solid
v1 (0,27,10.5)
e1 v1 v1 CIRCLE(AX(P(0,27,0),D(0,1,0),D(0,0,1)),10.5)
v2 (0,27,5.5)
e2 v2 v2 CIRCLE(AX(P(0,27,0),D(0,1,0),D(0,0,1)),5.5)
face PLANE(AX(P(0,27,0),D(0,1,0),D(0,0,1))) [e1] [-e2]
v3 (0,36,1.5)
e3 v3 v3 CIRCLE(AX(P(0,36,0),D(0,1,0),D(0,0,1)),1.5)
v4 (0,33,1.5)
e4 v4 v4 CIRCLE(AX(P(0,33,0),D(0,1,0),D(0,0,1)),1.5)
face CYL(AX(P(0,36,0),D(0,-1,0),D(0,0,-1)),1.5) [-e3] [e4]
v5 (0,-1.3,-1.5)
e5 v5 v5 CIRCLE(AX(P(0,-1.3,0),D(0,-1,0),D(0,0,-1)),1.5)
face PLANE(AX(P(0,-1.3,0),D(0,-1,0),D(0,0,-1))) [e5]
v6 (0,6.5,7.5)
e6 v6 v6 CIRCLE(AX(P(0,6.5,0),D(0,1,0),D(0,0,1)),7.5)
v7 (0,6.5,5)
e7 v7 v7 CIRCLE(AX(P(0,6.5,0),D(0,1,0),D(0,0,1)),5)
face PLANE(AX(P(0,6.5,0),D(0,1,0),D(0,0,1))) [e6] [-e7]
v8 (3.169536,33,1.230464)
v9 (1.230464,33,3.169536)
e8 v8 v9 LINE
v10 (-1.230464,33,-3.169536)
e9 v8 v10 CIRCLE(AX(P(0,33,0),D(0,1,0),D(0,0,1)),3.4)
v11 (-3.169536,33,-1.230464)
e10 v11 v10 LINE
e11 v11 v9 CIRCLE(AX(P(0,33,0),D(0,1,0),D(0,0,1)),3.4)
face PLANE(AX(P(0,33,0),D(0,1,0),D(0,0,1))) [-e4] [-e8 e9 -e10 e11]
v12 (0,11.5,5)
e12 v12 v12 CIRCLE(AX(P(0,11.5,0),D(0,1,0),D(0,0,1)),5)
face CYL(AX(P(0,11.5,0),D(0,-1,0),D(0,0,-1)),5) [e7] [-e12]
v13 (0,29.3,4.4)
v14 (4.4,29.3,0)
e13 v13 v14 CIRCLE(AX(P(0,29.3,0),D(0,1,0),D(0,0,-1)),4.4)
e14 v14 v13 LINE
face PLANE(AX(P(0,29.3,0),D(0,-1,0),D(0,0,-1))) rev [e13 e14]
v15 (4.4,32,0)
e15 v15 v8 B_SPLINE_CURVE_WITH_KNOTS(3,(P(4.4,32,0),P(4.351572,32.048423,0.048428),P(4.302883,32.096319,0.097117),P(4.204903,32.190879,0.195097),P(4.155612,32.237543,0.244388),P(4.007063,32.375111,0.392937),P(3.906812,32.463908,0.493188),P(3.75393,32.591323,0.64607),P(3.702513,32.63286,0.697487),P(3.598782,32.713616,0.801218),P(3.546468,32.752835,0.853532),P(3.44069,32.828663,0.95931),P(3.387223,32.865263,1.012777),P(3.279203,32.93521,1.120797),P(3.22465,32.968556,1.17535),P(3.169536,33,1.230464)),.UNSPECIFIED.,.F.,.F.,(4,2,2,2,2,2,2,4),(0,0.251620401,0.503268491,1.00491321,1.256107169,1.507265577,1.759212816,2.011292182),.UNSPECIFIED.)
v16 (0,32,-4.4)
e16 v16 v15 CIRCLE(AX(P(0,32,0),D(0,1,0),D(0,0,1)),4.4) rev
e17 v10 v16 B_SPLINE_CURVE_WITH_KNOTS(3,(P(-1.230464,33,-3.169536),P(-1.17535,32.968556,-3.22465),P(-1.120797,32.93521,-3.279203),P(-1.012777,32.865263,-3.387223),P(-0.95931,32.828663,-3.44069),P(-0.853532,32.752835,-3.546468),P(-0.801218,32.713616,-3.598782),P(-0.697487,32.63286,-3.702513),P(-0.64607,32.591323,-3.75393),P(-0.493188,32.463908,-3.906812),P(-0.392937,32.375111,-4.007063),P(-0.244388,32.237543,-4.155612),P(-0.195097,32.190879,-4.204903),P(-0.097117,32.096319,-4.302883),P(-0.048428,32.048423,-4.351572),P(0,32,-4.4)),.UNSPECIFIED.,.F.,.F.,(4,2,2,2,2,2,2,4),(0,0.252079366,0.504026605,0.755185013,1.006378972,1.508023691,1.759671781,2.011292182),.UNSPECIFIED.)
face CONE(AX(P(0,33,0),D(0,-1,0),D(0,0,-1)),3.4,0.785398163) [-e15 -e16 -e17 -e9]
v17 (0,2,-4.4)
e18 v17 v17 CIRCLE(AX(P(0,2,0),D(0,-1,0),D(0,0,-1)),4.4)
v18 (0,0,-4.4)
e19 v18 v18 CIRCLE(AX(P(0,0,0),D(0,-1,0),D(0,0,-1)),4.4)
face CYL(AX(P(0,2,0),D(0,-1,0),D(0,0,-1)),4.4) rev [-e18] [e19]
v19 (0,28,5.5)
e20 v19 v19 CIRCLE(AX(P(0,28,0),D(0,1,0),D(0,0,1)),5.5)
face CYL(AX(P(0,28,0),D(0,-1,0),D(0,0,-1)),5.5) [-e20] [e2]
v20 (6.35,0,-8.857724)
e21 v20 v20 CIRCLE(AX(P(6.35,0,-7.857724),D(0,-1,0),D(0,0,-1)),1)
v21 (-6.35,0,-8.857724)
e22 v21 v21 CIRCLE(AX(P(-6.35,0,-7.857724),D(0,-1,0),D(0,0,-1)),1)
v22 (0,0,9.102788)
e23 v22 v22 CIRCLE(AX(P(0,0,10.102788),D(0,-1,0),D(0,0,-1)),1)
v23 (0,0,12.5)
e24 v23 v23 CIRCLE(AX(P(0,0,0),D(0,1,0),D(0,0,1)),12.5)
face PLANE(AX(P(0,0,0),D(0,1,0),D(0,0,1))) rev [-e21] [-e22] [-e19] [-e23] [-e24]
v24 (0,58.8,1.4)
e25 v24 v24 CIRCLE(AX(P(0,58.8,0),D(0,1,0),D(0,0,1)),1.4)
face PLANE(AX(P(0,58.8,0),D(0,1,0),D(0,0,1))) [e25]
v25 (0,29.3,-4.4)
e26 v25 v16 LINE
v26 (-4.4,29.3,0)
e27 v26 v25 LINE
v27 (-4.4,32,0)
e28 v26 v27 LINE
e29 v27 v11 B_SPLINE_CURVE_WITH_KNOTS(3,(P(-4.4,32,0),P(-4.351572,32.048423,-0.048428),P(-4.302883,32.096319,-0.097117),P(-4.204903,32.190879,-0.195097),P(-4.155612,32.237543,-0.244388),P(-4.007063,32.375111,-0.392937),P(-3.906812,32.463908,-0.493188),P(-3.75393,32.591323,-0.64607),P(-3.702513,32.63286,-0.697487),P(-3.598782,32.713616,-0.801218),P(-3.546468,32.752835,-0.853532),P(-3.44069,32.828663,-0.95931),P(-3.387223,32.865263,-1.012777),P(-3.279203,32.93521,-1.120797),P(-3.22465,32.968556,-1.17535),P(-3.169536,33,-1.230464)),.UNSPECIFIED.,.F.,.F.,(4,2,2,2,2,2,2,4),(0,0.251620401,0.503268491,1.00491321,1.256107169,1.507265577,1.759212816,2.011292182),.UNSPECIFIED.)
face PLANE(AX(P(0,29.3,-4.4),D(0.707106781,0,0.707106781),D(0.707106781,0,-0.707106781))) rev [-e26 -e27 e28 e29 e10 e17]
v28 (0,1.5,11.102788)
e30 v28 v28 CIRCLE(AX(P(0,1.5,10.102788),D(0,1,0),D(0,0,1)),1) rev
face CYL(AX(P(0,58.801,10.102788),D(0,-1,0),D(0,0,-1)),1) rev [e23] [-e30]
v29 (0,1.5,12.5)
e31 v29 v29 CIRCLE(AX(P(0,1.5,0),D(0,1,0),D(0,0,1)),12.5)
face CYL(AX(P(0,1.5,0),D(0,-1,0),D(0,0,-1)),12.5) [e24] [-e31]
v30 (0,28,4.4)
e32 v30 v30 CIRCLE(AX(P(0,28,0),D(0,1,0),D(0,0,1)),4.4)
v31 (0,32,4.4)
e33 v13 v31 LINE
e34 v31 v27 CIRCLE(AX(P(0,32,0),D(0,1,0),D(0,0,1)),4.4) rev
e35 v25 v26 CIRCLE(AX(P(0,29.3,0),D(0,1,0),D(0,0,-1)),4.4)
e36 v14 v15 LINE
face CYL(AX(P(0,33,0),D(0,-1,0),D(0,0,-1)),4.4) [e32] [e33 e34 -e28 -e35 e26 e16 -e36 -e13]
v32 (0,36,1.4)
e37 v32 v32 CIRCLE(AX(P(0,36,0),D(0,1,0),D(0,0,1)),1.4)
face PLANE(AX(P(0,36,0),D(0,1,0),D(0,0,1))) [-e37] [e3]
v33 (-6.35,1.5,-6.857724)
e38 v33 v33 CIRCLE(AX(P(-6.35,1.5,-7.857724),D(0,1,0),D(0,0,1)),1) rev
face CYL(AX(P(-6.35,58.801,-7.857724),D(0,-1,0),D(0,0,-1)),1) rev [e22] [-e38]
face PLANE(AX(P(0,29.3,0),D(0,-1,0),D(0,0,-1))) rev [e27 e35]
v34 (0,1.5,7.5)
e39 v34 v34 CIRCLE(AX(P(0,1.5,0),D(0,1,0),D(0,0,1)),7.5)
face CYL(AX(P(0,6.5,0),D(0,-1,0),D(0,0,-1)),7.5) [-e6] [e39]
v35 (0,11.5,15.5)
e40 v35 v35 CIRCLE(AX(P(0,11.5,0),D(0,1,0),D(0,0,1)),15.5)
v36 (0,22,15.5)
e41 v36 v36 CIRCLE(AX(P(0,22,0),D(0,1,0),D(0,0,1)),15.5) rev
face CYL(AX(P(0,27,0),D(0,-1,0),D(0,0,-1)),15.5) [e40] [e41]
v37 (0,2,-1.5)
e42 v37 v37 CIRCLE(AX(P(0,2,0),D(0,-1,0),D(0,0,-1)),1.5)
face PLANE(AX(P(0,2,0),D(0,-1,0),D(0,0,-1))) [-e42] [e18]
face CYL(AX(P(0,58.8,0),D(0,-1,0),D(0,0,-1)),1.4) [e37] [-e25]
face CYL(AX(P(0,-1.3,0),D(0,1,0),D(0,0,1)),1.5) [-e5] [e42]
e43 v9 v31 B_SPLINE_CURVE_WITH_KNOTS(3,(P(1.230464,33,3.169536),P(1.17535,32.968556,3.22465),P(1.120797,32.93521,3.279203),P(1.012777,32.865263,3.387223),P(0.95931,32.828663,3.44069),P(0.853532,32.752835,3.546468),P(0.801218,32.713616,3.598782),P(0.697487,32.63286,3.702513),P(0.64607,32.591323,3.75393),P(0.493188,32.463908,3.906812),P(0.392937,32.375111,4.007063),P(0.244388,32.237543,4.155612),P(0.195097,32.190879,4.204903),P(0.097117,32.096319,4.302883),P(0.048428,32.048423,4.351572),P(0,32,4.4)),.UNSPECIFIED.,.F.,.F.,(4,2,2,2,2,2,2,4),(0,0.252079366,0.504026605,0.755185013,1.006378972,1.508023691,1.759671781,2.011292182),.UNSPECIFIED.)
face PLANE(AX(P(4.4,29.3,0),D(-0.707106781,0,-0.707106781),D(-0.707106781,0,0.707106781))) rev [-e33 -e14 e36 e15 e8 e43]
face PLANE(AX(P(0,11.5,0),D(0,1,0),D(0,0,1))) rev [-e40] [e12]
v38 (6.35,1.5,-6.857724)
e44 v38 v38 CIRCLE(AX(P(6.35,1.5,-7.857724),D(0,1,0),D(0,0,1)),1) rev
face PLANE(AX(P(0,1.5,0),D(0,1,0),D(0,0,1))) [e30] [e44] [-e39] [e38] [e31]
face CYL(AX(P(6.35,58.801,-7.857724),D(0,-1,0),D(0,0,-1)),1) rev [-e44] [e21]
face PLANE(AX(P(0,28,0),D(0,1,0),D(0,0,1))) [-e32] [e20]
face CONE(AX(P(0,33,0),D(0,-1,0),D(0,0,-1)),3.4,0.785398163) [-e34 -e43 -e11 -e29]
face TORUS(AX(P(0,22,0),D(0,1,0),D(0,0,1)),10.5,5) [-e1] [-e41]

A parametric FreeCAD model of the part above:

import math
import FreeCAD as App
import Part
import Sketcher
from FreeCAD import Vector


def edges_at(feature, points):
    """Names of the edges that pass closest to the given points."""
    edges = feature.Shape.Edges
    near = lambda p: min(range(len(edges)), key=lambda i: edges[i].distToShape(Part.Vertex(*p))[0])
    return sorted({f"Edge{near(p) + 1}" for p in points})

doc = App.newDocument("Part")
params = doc.addObject("Spreadsheet::Sheet", "Params")
for row, (alias, value) in enumerate([
    ("sketch1_diameter", "25 mm"),
    ("pad1_length", "1.5 mm"),
    ("sketch2_diameter", "15 mm"),
    ("pad2_length", "5 mm"),
    ("sketch3_diameter", "10 mm"),
    ("pad3_length", "5 mm"),
    ("sketch4_diameter", "31 mm"),
    ("pad4_length", "15.5 mm"),
    ("sketch5_diameter", "11 mm"),
    ("pad5_length", "1 mm"),
    ("sketch6_diameter", "8.8 mm"),
    ("pad6_length", "5 mm"),
    ("sketch7_radius", "4.4 mm"),
    ("pocket1_length", "3.7 mm"),
    ("sketch8_diameter", "3 mm"),
    ("pad7_length", "3 mm"),
    ("sketch9_diameter", "2.8 mm"),
    ("pad8_length", "22.8 mm"),
    ("sketch10_diameter", "8.8 mm"),
    ("pocket2_length", "2 mm"),
    ("sketch11_diameter", "3 mm"),
    ("pad9_length", "3.3 mm"),
    ("sketch12_diameter", "2 mm"),
    ("sketch13_diameter", "2 mm"),
    ("sketch14_diameter", "2 mm"),
    ("fillet_radius", "5 mm"),
    ("chamfer_size", "1 mm"),
], start=1):
    params.set(f"A{row}", alias)
    params.set(f"B{row}", "=" + value)
    params.setAlias(f"B{row}", alias)

body = doc.addObject("PartDesign::Body", "Body")

# Sketch on XZ plane
sketch1 = body.newObject("Sketcher::SketchObject", "Sketch")
sketch1.AttachmentSupport = (doc.getObject("XZ_Plane"), [""])
sketch1.MapMode = "FlatFace"
sketch1.addGeometry(Part.Circle(Vector(0, 0, 0), Vector(0, 0, 1), 12.5), False)
sketch1.addConstraint([
    Sketcher.Constraint("Coincident", 0, 3, -1, 1),
    Sketcher.Constraint("Diameter", 0, 25.0),
])
sketch1.setExpression("Constraints[1]", "Params.sketch1_diameter")
pad1 = body.newObject("PartDesign::Pad", "Pad")
pad1.Profile = sketch1
pad1.setExpression("Length", "Params.pad1_length")
pad1.Reversed = True

# Sketch on XZ plane
sketch2 = body.newObject("Sketcher::SketchObject", "Sketch001")
sketch2.AttachmentSupport = (doc.getObject("XZ_Plane"), [""])
sketch2.MapMode = "FlatFace"
sketch2.AttachmentOffset = App.Placement(Vector(0, 0, -1.5), App.Rotation())
sketch2.addGeometry(Part.Circle(Vector(0, 0, 0), Vector(0, 0, 1), 7.5), False)
sketch2.addConstraint([
    Sketcher.Constraint("Coincident", 0, 3, -1, 1),
    Sketcher.Constraint("Diameter", 0, 15.0),
])
sketch2.setExpression("Constraints[1]", "Params.sketch2_diameter")
pad2 = body.newObject("PartDesign::Pad", "Pad001")
pad2.Profile = sketch2
pad2.setExpression("Length", "Params.pad2_length")
pad2.Reversed = True

# Sketch on XZ plane
sketch3 = body.newObject("Sketcher::SketchObject", "Sketch002")
sketch3.AttachmentSupport = (doc.getObject("XZ_Plane"), [""])
sketch3.MapMode = "FlatFace"
sketch3.AttachmentOffset = App.Placement(Vector(0, 0, -6.5), App.Rotation())
sketch3.addGeometry(Part.Circle(Vector(0, 0, 0), Vector(0, 0, 1), 5), False)
sketch3.addConstraint([
    Sketcher.Constraint("Coincident", 0, 3, -1, 1),
    Sketcher.Constraint("Diameter", 0, 10.0),
])
sketch3.setExpression("Constraints[1]", "Params.sketch3_diameter")
pad3 = body.newObject("PartDesign::Pad", "Pad002")
pad3.Profile = sketch3
pad3.setExpression("Length", "Params.pad3_length")
pad3.Reversed = True

# Sketch on XZ plane
sketch4 = body.newObject("Sketcher::SketchObject", "Sketch003")
sketch4.AttachmentSupport = (doc.getObject("XZ_Plane"), [""])
sketch4.MapMode = "FlatFace"
sketch4.AttachmentOffset = App.Placement(Vector(0, 0, -11.5), App.Rotation())
sketch4.addGeometry(Part.Circle(Vector(0, 0, 0), Vector(0, 0, 1), 15.5), False)
sketch4.addConstraint([
    Sketcher.Constraint("Coincident", 0, 3, -1, 1),
    Sketcher.Constraint("Diameter", 0, 31.0),
])
sketch4.setExpression("Constraints[1]", "Params.sketch4_diameter")
pad4 = body.newObject("PartDesign::Pad", "Pad003")
pad4.Profile = sketch4
pad4.setExpression("Length", "Params.pad4_length")
pad4.Reversed = True

# Sketch on XZ plane
sketch5 = body.newObject("Sketcher::SketchObject", "Sketch004")
sketch5.AttachmentSupport = (doc.getObject("XZ_Plane"), [""])
sketch5.MapMode = "FlatFace"
sketch5.AttachmentOffset = App.Placement(Vector(0, 0, -27), App.Rotation())
sketch5.addGeometry(Part.Circle(Vector(0, 0, 0), Vector(0, 0, 1), 5.5), False)
sketch5.addConstraint([
    Sketcher.Constraint("Coincident", 0, 3, -1, 1),
    Sketcher.Constraint("Diameter", 0, 11.0),
])
sketch5.setExpression("Constraints[1]", "Params.sketch5_diameter")
pad5 = body.newObject("PartDesign::Pad", "Pad004")
pad5.Profile = sketch5
pad5.setExpression("Length", "Params.pad5_length")
pad5.Reversed = True

# Sketch on XZ plane
sketch6 = body.newObject("Sketcher::SketchObject", "Sketch005")
sketch6.AttachmentSupport = (doc.getObject("XZ_Plane"), [""])
sketch6.MapMode = "FlatFace"
sketch6.AttachmentOffset = App.Placement(Vector(0, 0, -28), App.Rotation())
sketch6.addGeometry(Part.Circle(Vector(0, 0, 0), Vector(0, 0, 1), 4.4), False)
sketch6.addConstraint([
    Sketcher.Constraint("Coincident", 0, 3, -1, 1),
    Sketcher.Constraint("Diameter", 0, 8.8),
])
sketch6.setExpression("Constraints[1]", "Params.sketch6_diameter")
pad6 = body.newObject("PartDesign::Pad", "Pad005")
pad6.Profile = sketch6
pad6.setExpression("Length", "Params.pad6_length")
pad6.Reversed = True

# Sketch on XZ plane
sketch7 = body.newObject("Sketcher::SketchObject", "Sketch006")
sketch7.AttachmentSupport = (doc.getObject("XZ_Plane"), [""])
sketch7.MapMode = "FlatFace"
sketch7.AttachmentOffset = App.Placement(Vector(0, 0, -29.3), App.Rotation())
sketch7.addGeometry([
    Part.LineSegment(Vector(-4.4, 0, 0), Vector(0, -4.4, 0)),
    Part.ArcOfCircle(Part.Circle(Vector(0, 0, 0), Vector(0, 0, 1), 4.4), math.radians(-180), math.radians(-90)),
    Part.LineSegment(Vector(4.4, 0, 0), Vector(0, 4.4, 0)),
    Part.ArcOfCircle(Part.Circle(Vector(0, 0, 0), Vector(0, 0, 1), 4.4), math.radians(0), math.radians(90)),
], False)
sketch7.addConstraint([
    Sketcher.Constraint("Coincident", 0, 1, 1, 1),
    Sketcher.Constraint("Coincident", 1, 2, 0, 2),
    Sketcher.Constraint("Coincident", 2, 1, 3, 1),
    Sketcher.Constraint("Coincident", 3, 2, 2, 2),
    Sketcher.Constraint("Coincident", 1, 3, -1, 1),
    Sketcher.Constraint("Coincident", 3, 3, -1, 1),
    Sketcher.Constraint("Equal", 1, 3),
    Sketcher.Constraint("PointOnObject", 0, 1, -1),
    Sketcher.Constraint("PointOnObject", 1, 2, -2),
    Sketcher.Constraint("PointOnObject", 2, 1, -1),
    Sketcher.Constraint("PointOnObject", 3, 2, -2),
    Sketcher.Constraint("Radius", 1, 4.4),
])
sketch7.setExpression("Constraints[11]", "Params.sketch7_radius")
pocket1 = body.newObject("PartDesign::Pocket", "Pocket")
pocket1.Profile = sketch7
pocket1.setExpression("Length", "Params.pocket1_length")

# Sketch on XZ plane
sketch8 = body.newObject("Sketcher::SketchObject", "Sketch007")
sketch8.AttachmentSupport = (doc.getObject("XZ_Plane"), [""])
sketch8.MapMode = "FlatFace"
sketch8.AttachmentOffset = App.Placement(Vector(0, 0, -33), App.Rotation())
sketch8.addGeometry(Part.Circle(Vector(0, 0, 0), Vector(0, 0, 1), 1.5), False)
sketch8.addConstraint([
    Sketcher.Constraint("Coincident", 0, 3, -1, 1),
    Sketcher.Constraint("Diameter", 0, 3.0),
])
sketch8.setExpression("Constraints[1]", "Params.sketch8_diameter")
pad7 = body.newObject("PartDesign::Pad", "Pad006")
pad7.Profile = sketch8
pad7.setExpression("Length", "Params.pad7_length")
pad7.Reversed = True

# Sketch on XZ plane
sketch9 = body.newObject("Sketcher::SketchObject", "Sketch008")
sketch9.AttachmentSupport = (doc.getObject("XZ_Plane"), [""])
sketch9.MapMode = "FlatFace"
sketch9.AttachmentOffset = App.Placement(Vector(0, 0, -36), App.Rotation())
sketch9.addGeometry(Part.Circle(Vector(0, 0, 0), Vector(0, 0, 1), 1.4), False)
sketch9.addConstraint([
    Sketcher.Constraint("Coincident", 0, 3, -1, 1),
    Sketcher.Constraint("Diameter", 0, 2.8),
])
sketch9.setExpression("Constraints[1]", "Params.sketch9_diameter")
pad8 = body.newObject("PartDesign::Pad", "Pad007")
pad8.Profile = sketch9
pad8.setExpression("Length", "Params.pad8_length")
pad8.Reversed = True

# Sketch on XZ plane
sketch10 = body.newObject("Sketcher::SketchObject", "Sketch009")
sketch10.AttachmentSupport = (doc.getObject("XZ_Plane"), [""])
sketch10.MapMode = "FlatFace"
sketch10.addGeometry(Part.Circle(Vector(0, 0, 0), Vector(0, 0, 1), 4.4), False)
sketch10.addConstraint([
    Sketcher.Constraint("Coincident", 0, 3, -1, 1),
    Sketcher.Constraint("Diameter", 0, 8.8),
])
sketch10.setExpression("Constraints[1]", "Params.sketch10_diameter")
pocket2 = body.newObject("PartDesign::Pocket", "Pocket001")
pocket2.Profile = sketch10
pocket2.setExpression("Length", "Params.pocket2_length")

# Sketch on XZ plane
sketch11 = body.newObject("Sketcher::SketchObject", "Sketch010")
sketch11.AttachmentSupport = (doc.getObject("XZ_Plane"), [""])
sketch11.MapMode = "FlatFace"
sketch11.AttachmentOffset = App.Placement(Vector(0, 0, 1.3), App.Rotation())
sketch11.addGeometry(Part.Circle(Vector(0, 0, 0), Vector(0, 0, 1), 1.5), False)
sketch11.addConstraint([
    Sketcher.Constraint("Coincident", 0, 3, -1, 1),
    Sketcher.Constraint("Diameter", 0, 3.0),
])
sketch11.setExpression("Constraints[1]", "Params.sketch11_diameter")
pad9 = body.newObject("PartDesign::Pad", "Pad008")
pad9.Profile = sketch11
pad9.setExpression("Length", "Params.pad9_length")
pad9.Reversed = True

# Sketch on XZ plane
sketch12 = body.newObject("Sketcher::SketchObject", "Sketch011")
sketch12.AttachmentSupport = (doc.getObject("XZ_Plane"), [""])
sketch12.MapMode = "FlatFace"
sketch12.addGeometry(Part.Circle(Vector(0, 10.102788, 0), Vector(0, 0, 1), 1), False)
sketch12.addConstraint([
    Sketcher.Constraint("PointOnObject", 0, 3, -2),
    Sketcher.Constraint("Diameter", 0, 2.0),
    Sketcher.Constraint("DistanceY", -1, 1, 0, 3, 10.102788),
])
sketch12.setExpression("Constraints[1]", "Params.sketch12_diameter")
pocket3 = body.newObject("PartDesign::Pocket", "Pocket002")
pocket3.Profile = sketch12
pocket3.Type = "UpToFirst"

# Sketch on XZ plane
sketch13 = body.newObject("Sketcher::SketchObject", "Sketch012")
sketch13.AttachmentSupport = (doc.getObject("XZ_Plane"), [""])
sketch13.MapMode = "FlatFace"
sketch13.addGeometry(Part.Circle(Vector(-6.35, -7.857724, 0), Vector(0, 0, 1), 1), False)
sketch13.addConstraint([
    Sketcher.Constraint("Diameter", 0, 2.0),
    Sketcher.Constraint("DistanceX", 0, 3, -1, 1, 6.35),
    Sketcher.Constraint("DistanceY", 0, 3, -1, 1, 7.857724),
])
sketch13.setExpression("Constraints[0]", "Params.sketch13_diameter")
pocket4 = body.newObject("PartDesign::Pocket", "Pocket003")
pocket4.Profile = sketch13
pocket4.Type = "UpToFirst"

# Sketch on XZ plane
sketch14 = body.newObject("Sketcher::SketchObject", "Sketch013")
sketch14.AttachmentSupport = (doc.getObject("XZ_Plane"), [""])
sketch14.MapMode = "FlatFace"
sketch14.addGeometry(Part.Circle(Vector(6.35, -7.857724, 0), Vector(0, 0, 1), 1), False)
sketch14.addConstraint([
    Sketcher.Constraint("Diameter", 0, 2.0),
    Sketcher.Constraint("DistanceX", -1, 1, 0, 3, 6.35),
    Sketcher.Constraint("DistanceY", 0, 3, -1, 1, 7.857724),
])
sketch14.setExpression("Constraints[0]", "Params.sketch14_diameter")
pocket5 = body.newObject("PartDesign::Pocket", "Pocket004")
pocket5.Profile = sketch14
pocket5.Type = "UpToFirst"
doc.recompute()

fillet = body.newObject("PartDesign::Fillet", "Fillet")
fillet.Base = (pocket5, edges_at(pocket5, [(0, 27, -15.5)]))
fillet.setExpression("Radius", "Params.fillet_radius")
doc.recompute()

chamfer = body.newObject("PartDesign::Chamfer", "Chamfer")
chamfer.Base = (fillet, edges_at(fillet, [(-3.111, 33, 3.111), (3.111, 33, -3.111)]))
chamfer.setExpression("Size", "Params.chamfer_size")

doc.recompute()
